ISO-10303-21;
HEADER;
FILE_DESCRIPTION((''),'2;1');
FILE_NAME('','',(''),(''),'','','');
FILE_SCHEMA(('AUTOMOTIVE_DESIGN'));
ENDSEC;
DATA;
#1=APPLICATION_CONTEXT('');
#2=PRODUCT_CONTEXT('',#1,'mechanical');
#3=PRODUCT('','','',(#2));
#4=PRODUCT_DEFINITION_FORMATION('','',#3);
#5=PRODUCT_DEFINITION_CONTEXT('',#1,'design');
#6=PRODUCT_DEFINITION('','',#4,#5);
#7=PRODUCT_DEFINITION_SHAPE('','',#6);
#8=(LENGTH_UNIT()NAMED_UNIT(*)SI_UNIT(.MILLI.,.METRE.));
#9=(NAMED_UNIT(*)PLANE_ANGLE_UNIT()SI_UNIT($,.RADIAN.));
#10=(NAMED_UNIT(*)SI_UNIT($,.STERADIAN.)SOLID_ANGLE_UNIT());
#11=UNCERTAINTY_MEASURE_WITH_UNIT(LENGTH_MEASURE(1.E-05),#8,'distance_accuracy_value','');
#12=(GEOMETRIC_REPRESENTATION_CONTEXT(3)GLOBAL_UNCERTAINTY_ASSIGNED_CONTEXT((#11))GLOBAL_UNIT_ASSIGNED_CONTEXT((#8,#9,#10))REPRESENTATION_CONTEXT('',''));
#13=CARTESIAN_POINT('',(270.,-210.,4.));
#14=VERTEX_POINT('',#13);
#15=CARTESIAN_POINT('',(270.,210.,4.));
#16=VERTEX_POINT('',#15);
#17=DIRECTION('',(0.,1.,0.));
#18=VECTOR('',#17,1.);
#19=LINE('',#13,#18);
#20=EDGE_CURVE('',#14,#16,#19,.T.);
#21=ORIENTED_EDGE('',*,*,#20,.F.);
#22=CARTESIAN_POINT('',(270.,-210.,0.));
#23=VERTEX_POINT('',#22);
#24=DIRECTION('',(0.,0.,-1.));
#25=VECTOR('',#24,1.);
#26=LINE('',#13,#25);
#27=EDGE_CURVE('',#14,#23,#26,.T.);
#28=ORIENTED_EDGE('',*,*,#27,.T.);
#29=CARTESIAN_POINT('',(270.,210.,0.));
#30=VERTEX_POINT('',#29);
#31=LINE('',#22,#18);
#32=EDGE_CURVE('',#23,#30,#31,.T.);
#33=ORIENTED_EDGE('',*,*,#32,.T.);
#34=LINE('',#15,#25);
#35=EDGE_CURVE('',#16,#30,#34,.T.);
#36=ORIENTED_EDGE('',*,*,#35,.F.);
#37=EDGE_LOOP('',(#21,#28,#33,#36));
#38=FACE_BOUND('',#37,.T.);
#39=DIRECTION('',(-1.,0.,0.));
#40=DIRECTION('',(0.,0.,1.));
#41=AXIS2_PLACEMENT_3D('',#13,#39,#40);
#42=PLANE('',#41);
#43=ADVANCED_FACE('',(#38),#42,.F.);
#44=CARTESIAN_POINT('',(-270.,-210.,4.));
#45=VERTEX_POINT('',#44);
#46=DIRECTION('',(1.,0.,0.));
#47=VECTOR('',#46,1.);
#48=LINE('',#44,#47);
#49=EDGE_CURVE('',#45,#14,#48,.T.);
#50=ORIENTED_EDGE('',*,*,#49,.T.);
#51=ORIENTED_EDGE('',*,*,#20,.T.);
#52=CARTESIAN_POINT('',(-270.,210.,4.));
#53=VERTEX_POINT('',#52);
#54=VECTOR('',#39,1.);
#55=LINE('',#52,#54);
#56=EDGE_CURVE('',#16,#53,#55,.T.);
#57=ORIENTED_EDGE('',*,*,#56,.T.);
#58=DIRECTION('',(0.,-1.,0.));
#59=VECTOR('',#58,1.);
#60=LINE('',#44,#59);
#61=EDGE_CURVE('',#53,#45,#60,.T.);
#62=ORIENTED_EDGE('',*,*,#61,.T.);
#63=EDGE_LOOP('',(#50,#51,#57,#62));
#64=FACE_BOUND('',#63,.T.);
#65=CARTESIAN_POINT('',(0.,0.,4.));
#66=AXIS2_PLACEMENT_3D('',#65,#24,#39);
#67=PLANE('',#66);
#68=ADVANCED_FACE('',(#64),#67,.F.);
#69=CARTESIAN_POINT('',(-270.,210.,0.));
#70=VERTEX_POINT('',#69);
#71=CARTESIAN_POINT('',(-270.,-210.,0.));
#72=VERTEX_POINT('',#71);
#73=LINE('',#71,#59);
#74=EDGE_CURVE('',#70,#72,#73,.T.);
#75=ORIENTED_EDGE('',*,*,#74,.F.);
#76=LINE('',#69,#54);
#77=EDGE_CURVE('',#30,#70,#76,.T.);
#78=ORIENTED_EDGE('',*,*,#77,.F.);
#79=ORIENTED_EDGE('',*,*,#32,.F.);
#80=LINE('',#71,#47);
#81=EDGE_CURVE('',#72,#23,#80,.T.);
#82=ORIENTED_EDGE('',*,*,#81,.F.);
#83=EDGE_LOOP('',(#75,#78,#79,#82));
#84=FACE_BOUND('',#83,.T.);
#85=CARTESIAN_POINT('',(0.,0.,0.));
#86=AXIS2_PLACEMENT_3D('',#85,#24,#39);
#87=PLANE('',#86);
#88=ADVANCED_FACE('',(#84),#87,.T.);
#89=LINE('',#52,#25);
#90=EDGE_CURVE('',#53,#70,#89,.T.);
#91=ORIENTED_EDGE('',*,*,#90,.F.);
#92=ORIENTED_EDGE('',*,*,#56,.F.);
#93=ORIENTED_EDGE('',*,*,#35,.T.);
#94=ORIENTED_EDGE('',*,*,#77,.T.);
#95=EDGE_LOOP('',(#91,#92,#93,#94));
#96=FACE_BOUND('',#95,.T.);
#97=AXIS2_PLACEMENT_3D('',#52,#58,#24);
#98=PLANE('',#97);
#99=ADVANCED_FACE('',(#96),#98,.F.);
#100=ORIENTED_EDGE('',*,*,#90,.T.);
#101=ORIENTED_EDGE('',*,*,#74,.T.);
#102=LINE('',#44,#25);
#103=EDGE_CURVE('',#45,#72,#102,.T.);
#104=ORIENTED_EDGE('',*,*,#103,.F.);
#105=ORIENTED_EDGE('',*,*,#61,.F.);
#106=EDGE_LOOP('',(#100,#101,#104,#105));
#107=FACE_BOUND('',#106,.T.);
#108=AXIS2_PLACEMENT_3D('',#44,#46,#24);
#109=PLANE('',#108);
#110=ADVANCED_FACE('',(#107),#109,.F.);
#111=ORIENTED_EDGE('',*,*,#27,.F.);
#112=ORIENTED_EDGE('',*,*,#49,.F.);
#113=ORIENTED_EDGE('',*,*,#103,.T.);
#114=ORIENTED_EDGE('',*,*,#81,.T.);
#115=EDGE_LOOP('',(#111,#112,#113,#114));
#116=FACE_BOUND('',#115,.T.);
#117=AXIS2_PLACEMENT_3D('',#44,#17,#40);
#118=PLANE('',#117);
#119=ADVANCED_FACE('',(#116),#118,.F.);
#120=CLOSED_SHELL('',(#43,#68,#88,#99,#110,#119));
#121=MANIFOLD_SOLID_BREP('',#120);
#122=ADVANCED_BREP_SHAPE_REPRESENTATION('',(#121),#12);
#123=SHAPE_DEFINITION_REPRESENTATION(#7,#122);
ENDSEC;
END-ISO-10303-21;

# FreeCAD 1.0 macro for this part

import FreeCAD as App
import Part
import Sketcher
from FreeCAD import Vector


def add_polygon(sketch, points):
    """Adds a closed chain of lines whose ends are joined by coincident constraints."""
    first, n = sketch.GeometryCount, len(points)
    for a, b in zip(points, points[1:] + points[:1]):
        sketch.addGeometry(Part.LineSegment(App.Vector(*a, 0), App.Vector(*b, 0)), False)
    for i in range(n):
        sketch.addConstraint(Sketcher.Constraint("Coincident", first + i, 2, first + (i + 1) % n, 1))

doc = App.newDocument("Part")
body = doc.addObject("PartDesign::Body", "Body")

sketch1 = doc.addObject("Sketcher::SketchObject", "Sketch")
body.addObject(sketch1)
sketch1.AttachmentSupport = (doc.XY_Plane, [""])
sketch1.MapMode = "FlatFace"
add_polygon(sketch1, [(-270, 210), (-270, -210), (270, -210), (270, 210)])
sketch1.addConstraint([
    Sketcher.Constraint("Vertical", 0),
    Sketcher.Constraint("Horizontal", 1),
    Sketcher.Constraint("Vertical", 2),
    Sketcher.Constraint("Horizontal", 3),
    Sketcher.Constraint("Symmetric", 0, 2, 2, 2, -1, 1),
    Sketcher.Constraint("DistanceX", 1, 1, 1, 2, 540.0),
    Sketcher.Constraint("DistanceY", 0, 2, 0, 1, 420.0),
])
pad1 = doc.addObject("PartDesign::Pad", "Pad")
body.addObject(pad1)
pad1.Profile = sketch1
pad1.Length = 4

doc.recompute()
